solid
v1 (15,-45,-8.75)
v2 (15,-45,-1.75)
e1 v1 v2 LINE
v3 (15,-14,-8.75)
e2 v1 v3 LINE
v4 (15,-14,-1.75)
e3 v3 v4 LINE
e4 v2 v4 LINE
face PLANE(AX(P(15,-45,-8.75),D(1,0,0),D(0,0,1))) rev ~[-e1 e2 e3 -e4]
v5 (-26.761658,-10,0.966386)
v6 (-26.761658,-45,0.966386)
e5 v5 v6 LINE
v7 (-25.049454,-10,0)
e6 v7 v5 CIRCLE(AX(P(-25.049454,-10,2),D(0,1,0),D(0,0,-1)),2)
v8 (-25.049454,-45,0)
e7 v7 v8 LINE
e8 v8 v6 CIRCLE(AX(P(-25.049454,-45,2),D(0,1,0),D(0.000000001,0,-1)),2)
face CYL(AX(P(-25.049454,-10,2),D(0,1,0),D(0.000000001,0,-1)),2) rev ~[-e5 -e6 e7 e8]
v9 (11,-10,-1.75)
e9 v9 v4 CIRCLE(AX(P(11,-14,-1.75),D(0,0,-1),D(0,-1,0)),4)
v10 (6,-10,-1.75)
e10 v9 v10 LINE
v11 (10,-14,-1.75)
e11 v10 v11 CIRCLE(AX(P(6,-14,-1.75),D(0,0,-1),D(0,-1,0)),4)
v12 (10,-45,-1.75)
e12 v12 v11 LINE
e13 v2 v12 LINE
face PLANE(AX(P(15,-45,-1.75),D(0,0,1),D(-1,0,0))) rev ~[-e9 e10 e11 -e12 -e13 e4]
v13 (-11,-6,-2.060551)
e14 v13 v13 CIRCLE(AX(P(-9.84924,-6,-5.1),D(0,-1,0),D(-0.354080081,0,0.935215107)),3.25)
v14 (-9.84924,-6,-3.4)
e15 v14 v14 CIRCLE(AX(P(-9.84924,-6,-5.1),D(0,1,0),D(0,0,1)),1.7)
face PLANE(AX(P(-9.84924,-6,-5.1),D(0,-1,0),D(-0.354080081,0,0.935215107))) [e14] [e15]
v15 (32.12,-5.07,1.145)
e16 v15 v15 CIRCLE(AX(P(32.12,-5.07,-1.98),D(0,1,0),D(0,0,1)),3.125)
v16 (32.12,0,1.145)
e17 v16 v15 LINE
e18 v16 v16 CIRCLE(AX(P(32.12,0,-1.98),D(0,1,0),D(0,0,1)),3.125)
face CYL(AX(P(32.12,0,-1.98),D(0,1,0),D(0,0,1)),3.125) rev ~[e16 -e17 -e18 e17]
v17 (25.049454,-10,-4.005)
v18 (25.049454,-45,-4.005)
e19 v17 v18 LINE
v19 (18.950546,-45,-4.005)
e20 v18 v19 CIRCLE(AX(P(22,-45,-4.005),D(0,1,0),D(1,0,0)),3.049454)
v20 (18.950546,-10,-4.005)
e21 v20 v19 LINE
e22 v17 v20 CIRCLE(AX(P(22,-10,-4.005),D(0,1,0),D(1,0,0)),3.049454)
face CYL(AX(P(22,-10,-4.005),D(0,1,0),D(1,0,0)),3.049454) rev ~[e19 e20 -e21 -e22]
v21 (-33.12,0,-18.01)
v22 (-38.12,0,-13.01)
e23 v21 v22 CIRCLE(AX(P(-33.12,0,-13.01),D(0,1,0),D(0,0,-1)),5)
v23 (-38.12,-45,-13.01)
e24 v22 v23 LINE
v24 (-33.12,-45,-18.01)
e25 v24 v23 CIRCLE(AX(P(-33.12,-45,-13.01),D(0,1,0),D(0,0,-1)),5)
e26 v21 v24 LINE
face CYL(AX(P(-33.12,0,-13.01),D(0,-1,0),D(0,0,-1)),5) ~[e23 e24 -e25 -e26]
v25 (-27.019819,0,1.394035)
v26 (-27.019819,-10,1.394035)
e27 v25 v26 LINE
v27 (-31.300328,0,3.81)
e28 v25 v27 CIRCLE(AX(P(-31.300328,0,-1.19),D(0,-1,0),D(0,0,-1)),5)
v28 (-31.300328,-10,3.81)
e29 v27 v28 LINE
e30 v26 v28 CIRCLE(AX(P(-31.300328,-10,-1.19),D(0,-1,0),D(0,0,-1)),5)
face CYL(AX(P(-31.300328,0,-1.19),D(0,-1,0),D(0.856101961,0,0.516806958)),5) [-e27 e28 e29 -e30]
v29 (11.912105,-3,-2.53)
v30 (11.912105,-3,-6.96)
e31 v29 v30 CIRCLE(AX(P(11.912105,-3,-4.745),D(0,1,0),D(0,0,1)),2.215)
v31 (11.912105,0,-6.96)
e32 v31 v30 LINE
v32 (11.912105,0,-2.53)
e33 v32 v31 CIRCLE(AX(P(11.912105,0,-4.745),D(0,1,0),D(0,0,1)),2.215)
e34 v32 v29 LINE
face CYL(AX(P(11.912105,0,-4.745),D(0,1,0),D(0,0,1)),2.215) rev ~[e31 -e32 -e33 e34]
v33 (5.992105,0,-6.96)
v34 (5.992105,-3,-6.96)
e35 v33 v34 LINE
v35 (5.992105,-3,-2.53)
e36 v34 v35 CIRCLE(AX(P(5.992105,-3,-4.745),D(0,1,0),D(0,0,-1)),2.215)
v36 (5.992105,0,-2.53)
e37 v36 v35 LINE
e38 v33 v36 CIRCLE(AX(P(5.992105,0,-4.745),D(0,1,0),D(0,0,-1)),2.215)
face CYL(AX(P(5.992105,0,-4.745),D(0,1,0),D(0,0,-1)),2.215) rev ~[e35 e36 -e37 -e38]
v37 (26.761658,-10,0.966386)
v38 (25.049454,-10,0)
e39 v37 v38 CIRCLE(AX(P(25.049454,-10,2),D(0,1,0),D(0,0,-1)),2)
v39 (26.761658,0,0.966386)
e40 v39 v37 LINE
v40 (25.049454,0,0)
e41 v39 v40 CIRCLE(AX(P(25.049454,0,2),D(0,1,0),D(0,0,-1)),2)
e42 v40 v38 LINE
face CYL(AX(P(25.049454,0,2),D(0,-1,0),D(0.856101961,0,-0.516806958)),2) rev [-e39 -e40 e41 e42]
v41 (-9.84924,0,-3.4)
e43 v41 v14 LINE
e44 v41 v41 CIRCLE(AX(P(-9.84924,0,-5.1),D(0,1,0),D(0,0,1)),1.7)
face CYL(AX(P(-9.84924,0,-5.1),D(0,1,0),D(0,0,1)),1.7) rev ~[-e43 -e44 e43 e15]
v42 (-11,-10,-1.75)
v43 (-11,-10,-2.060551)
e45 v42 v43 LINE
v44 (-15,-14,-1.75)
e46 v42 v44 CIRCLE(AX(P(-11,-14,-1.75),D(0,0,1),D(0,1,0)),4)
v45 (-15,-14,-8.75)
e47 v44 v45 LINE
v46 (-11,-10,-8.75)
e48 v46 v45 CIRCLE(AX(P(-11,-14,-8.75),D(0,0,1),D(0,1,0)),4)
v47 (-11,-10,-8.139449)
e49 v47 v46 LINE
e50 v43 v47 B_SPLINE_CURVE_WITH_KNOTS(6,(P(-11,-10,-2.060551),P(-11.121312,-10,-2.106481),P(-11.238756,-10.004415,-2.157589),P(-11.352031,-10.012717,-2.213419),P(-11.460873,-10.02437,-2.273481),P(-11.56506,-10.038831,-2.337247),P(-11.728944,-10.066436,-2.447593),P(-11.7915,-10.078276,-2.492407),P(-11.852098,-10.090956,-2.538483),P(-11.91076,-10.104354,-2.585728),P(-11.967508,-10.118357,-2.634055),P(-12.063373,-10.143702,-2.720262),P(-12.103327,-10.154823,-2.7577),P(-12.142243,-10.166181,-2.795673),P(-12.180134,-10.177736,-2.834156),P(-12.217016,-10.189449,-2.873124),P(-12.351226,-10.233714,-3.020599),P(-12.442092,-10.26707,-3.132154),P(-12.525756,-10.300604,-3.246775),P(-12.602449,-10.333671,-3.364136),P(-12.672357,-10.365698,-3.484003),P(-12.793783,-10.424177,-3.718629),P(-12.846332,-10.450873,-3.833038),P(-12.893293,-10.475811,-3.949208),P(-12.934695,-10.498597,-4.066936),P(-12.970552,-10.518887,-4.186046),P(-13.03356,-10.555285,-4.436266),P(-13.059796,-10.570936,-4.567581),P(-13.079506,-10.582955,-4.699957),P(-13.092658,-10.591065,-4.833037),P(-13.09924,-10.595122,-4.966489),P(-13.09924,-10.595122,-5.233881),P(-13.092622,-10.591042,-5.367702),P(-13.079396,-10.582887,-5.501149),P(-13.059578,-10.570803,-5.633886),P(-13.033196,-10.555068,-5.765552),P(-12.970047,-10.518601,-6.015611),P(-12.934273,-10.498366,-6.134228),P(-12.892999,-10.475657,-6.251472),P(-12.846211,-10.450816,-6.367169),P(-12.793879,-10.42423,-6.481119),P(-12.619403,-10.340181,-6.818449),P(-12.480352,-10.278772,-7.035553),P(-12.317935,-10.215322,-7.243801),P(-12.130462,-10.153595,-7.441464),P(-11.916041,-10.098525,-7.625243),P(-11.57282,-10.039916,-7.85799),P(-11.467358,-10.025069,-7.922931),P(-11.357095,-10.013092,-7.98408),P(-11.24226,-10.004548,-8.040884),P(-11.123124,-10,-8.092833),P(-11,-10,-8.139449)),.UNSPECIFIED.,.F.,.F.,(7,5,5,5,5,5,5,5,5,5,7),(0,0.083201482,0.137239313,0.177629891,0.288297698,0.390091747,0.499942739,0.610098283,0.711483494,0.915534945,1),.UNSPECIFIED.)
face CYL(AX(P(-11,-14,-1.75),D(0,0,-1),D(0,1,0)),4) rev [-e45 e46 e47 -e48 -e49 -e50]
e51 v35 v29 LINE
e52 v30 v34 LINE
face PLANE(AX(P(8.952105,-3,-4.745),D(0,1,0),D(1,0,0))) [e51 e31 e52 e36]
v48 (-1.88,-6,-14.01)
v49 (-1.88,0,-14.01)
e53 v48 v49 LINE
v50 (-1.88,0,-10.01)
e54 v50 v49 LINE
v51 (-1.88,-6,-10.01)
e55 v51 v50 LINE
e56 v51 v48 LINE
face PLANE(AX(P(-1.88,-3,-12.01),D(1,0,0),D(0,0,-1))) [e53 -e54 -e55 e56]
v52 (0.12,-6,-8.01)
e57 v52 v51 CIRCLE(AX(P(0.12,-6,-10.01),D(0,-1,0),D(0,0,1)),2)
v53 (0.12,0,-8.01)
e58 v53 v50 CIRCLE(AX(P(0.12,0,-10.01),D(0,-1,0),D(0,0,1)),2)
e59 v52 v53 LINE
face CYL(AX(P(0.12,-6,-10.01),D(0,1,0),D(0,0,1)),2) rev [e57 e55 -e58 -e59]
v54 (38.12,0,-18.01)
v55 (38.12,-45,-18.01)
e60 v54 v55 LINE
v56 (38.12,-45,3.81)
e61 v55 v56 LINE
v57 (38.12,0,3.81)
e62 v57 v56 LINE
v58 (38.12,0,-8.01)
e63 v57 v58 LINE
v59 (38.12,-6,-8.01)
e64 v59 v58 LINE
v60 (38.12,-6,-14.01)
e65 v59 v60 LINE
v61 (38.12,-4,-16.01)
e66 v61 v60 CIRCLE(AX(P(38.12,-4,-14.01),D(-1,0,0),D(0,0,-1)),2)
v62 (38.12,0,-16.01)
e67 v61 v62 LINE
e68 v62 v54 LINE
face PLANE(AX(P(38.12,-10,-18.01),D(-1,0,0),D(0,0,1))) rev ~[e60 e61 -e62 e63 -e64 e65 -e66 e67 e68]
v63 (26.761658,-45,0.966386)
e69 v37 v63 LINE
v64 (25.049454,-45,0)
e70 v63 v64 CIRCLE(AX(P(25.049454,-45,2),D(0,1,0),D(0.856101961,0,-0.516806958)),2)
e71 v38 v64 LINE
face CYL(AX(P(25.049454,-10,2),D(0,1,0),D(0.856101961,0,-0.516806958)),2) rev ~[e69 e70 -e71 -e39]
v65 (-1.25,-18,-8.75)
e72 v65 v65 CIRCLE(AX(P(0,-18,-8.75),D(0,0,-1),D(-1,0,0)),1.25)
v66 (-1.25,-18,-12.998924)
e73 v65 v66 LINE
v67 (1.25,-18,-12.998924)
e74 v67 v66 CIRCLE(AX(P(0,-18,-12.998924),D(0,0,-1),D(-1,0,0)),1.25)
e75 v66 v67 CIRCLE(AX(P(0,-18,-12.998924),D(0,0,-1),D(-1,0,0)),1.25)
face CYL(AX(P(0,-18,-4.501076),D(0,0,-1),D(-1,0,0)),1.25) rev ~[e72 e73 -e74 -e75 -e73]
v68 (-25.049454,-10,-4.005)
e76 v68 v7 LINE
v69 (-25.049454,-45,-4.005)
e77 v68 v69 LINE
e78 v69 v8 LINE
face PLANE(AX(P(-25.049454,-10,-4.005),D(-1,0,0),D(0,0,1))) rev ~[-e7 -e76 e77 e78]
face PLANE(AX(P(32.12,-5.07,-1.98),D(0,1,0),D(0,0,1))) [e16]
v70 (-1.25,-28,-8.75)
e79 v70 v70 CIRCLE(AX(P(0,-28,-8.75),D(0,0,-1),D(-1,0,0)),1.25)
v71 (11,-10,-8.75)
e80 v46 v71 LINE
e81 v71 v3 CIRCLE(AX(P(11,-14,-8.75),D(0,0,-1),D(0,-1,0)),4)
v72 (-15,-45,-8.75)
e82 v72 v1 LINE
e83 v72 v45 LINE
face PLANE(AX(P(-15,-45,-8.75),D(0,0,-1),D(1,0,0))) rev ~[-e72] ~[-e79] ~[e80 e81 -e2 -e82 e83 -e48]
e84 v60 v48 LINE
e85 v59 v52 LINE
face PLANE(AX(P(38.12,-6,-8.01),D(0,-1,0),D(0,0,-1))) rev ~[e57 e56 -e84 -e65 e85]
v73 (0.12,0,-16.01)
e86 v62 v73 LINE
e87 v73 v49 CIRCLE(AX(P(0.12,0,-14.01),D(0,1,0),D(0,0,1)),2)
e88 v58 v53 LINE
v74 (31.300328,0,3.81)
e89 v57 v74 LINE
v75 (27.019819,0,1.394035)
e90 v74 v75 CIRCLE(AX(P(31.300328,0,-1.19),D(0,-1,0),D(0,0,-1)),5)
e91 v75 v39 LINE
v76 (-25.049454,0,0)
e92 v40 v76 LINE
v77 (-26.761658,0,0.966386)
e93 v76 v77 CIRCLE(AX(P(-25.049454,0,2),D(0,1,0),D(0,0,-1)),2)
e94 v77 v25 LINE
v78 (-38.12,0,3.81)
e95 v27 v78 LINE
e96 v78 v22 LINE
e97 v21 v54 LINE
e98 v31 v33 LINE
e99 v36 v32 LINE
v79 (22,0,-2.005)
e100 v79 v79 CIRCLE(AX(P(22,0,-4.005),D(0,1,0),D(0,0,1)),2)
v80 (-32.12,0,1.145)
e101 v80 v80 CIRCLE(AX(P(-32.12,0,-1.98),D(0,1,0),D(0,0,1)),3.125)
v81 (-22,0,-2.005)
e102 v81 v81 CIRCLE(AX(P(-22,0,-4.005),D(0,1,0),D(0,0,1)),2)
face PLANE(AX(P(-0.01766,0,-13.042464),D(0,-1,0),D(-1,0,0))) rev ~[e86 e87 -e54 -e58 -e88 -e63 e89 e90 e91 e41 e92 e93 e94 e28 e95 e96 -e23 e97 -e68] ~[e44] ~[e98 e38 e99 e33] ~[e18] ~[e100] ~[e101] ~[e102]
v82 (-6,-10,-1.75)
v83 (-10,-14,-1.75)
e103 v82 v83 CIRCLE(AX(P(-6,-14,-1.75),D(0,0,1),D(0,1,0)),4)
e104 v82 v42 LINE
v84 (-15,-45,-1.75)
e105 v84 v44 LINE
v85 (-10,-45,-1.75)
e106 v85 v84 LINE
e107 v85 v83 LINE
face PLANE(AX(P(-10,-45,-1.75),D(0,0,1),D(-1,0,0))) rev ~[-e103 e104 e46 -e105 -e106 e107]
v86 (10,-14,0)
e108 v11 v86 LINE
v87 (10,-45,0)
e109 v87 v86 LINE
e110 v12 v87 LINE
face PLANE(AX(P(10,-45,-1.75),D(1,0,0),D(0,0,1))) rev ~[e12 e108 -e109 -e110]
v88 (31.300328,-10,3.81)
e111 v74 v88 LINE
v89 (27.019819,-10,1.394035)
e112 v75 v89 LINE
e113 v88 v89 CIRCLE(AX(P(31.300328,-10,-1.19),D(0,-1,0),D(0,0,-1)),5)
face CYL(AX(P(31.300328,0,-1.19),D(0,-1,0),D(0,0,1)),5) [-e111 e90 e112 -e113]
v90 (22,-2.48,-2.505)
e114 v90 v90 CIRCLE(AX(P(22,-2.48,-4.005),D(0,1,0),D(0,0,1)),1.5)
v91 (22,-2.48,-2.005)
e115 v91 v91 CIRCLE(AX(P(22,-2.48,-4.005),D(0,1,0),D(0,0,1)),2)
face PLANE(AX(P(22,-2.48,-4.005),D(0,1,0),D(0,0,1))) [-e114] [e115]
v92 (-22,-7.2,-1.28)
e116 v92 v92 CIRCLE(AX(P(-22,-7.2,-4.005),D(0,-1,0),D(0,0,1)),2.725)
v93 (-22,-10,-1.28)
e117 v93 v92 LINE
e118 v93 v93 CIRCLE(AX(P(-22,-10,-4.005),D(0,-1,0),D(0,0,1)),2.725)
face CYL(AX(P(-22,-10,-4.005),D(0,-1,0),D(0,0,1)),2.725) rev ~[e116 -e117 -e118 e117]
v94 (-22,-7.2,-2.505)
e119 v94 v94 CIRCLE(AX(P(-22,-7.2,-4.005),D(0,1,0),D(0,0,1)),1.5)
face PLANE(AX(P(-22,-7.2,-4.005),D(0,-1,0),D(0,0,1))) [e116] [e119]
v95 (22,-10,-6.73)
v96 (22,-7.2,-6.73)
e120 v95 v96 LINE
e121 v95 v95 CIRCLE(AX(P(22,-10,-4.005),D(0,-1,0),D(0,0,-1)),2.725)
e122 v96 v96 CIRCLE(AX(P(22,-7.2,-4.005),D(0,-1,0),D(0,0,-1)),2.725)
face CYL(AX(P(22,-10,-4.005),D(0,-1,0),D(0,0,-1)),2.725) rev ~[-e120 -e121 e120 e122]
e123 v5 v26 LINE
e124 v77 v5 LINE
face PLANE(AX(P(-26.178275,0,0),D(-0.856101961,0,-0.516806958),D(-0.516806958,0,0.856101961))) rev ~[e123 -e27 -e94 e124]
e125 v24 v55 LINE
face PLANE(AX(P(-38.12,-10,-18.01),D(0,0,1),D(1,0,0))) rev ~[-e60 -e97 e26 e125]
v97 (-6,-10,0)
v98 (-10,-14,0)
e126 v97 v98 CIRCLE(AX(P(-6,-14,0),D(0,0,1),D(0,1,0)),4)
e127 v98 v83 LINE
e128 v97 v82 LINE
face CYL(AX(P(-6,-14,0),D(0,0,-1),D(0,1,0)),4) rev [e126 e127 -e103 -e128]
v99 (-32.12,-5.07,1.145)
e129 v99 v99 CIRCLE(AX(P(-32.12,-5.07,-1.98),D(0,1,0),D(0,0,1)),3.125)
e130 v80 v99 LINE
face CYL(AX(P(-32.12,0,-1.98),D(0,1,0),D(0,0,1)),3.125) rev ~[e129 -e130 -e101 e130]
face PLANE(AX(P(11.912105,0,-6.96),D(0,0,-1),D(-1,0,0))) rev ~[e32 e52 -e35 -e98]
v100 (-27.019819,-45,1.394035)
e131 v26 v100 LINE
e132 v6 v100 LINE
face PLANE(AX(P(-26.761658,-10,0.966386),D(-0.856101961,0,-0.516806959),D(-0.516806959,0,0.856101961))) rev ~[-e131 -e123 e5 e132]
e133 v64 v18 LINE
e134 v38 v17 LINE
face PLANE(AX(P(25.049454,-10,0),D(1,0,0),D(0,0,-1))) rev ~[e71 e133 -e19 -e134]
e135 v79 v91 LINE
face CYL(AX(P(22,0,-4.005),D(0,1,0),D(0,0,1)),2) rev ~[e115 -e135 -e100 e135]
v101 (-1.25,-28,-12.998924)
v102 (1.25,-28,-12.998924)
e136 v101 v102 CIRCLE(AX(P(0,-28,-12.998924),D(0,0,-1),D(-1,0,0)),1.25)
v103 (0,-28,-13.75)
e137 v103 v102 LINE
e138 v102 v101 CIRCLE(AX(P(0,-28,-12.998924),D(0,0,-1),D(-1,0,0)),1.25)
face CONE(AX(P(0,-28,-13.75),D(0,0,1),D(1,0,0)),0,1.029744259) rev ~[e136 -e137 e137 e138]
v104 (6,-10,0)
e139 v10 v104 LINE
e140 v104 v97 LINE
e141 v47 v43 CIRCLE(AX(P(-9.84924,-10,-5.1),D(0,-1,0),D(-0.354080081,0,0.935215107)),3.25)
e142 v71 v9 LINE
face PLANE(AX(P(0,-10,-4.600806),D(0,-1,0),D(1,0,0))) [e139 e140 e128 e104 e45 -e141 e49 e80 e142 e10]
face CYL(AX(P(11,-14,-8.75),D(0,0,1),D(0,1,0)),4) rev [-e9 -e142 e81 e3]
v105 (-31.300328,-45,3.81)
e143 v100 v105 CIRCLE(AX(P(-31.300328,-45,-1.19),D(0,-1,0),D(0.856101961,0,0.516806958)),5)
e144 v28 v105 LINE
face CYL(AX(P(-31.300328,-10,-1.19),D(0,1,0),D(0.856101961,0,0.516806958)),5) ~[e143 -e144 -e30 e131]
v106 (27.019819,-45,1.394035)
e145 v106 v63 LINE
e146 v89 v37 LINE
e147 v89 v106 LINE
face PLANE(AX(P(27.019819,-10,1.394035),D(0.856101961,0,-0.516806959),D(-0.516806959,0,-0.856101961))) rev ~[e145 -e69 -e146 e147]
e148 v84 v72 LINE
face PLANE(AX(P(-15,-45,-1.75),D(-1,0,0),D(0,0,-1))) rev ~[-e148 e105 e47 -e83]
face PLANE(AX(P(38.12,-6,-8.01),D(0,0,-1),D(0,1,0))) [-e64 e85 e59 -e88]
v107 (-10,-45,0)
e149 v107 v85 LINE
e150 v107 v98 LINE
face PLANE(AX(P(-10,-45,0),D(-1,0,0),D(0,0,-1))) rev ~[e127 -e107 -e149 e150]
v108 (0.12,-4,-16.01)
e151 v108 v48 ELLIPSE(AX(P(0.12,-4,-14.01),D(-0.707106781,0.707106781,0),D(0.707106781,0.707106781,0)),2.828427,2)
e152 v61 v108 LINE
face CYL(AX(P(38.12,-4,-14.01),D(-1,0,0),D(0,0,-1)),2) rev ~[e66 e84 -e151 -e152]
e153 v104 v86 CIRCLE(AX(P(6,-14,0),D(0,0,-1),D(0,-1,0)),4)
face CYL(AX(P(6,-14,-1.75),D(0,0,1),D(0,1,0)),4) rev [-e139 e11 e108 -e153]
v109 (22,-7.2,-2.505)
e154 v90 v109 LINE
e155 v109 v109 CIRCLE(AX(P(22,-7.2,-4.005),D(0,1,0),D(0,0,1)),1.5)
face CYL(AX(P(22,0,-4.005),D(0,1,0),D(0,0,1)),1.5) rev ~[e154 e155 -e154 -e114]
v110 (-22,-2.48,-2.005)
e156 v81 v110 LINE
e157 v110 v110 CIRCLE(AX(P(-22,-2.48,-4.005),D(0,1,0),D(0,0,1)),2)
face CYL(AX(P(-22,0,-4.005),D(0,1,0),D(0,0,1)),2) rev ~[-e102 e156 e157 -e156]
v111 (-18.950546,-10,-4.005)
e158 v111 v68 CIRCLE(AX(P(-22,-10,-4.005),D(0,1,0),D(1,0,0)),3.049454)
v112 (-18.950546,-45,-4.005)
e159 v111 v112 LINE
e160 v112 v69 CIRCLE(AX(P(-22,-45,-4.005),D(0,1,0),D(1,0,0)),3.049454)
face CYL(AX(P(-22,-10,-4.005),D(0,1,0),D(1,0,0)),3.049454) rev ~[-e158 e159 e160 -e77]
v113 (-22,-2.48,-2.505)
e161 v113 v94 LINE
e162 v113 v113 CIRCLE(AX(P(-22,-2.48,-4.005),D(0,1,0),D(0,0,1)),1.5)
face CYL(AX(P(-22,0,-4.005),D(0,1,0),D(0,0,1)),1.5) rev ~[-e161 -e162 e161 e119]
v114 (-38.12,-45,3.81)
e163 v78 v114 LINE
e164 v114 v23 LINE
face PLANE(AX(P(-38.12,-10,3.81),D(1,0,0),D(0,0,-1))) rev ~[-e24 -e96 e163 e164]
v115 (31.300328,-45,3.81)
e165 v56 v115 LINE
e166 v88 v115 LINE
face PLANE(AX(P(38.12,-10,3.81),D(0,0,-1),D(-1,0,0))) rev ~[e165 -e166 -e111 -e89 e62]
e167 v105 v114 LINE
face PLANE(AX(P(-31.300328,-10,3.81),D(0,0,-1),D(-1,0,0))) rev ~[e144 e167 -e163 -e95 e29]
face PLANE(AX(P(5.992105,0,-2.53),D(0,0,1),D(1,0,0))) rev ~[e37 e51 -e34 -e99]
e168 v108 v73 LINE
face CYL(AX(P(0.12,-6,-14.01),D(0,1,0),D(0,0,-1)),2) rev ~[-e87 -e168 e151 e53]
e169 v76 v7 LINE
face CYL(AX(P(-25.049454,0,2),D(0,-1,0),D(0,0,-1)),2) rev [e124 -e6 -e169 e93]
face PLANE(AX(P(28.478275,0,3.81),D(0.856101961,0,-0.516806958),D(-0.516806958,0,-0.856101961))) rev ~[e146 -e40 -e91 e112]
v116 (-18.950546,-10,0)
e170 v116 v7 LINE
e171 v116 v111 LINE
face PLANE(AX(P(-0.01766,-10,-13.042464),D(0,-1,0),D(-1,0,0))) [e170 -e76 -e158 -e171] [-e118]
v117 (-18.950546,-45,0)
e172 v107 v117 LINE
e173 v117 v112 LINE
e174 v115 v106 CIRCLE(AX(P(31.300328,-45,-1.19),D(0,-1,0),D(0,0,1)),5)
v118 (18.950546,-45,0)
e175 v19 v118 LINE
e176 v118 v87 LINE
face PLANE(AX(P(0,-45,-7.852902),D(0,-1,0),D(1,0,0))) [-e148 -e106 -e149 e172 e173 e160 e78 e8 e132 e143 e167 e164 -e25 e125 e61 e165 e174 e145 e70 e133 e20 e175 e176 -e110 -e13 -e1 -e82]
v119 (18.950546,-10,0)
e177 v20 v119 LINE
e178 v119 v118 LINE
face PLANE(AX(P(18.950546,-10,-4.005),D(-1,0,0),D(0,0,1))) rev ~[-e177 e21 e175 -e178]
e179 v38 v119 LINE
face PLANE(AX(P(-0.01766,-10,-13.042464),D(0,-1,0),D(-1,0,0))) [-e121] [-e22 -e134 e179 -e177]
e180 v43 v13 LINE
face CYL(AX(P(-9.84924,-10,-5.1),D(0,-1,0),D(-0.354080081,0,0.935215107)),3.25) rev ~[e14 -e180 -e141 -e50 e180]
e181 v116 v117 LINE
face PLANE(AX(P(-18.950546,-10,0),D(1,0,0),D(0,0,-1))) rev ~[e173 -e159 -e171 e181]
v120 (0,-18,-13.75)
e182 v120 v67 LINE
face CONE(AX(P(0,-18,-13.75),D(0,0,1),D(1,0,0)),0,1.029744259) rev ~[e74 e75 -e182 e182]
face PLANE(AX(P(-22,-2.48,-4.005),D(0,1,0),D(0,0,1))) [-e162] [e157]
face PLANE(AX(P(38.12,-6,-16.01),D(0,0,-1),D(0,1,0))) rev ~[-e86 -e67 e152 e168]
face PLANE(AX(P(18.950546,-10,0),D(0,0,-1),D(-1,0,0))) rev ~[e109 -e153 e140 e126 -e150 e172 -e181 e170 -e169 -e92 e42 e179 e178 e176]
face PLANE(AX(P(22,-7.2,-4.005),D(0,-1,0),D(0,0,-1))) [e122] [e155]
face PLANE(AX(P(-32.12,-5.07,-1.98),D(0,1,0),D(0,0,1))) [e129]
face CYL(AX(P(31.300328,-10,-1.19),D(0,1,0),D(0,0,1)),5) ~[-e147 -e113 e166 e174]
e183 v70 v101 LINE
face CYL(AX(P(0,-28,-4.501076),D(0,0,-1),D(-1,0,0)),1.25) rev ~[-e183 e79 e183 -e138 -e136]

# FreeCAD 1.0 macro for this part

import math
import FreeCAD as App
import Part
import Sketcher
from FreeCAD import Vector


def edges_at(feature, points):
    """Names of the edges that pass closest to the given points."""
    edges = feature.Shape.Edges
    near = lambda p: min(range(len(edges)), key=lambda i: edges[i].distToShape(Part.Vertex(*p))[0])
    return sorted({f"Edge{near(p) + 1}" for p in points})

doc = App.newDocument("Part")
params = doc.addObject("Spreadsheet::Sheet", "Params")
for row, (alias, value) in enumerate([
    ("sketch1_radius", "4.18 mm"),
    ("sketch1_height", "11.82 mm"),
    ("pad1_length", "10 mm"),
    ("fillet_radius", "5 mm"),
    ("fillet2_radius", "2 mm"),
    ("sketch2_diameter", "6.25 mm"),
    ("pocket1_length", "5.07 mm"),
    ("sketch3_diameter", "3.4 mm"),
    ("pocket2_length", "10 mm"),
    ("sketch4_width", "5.92 mm"),
    ("pocket3_length", "3 mm"),
    ("sketch5_diameter", "4 mm"),
    ("pocket4_length", "2.48 mm"),
    ("sketch6_diameter", "3 mm"),
    ("pocket5_length", "10 mm"),
    ("sketch7_diameter", "5.45 mm"),
    ("pocket6_length", "2.8 mm"),
    ("sketch8_height", "10 mm"),
    ("sketch8_radius", "4.18 mm"),
    ("sketch8_width", "76.24 mm"),
    ("pad2_length", "10 mm"),
    ("sketch9_radius", "2 mm"),
    ("sketch9_radius2", "5 mm"),
    ("sketch9_width", "76.24 mm"),
    ("sketch9_height", "21.82 mm"),
    ("pad3_length", "35 mm"),
    ("fillet3_radius", "5 mm"),
    ("sketch10_width", "6 mm"),
    ("sketch10_height", "8 mm"),
    ("pocket7_length", "40 mm"),
    ("fillet4_radius", "2 mm"),
    ("sketch11_width", "5 mm"),
    ("sketch11_width2", "30 mm"),
    ("sketch11_height", "7 mm"),
    ("sketch11_height2", "1.75 mm"),
    ("pocket8_length", "35 mm"),
    ("sketch12_diameter", "2.5 mm"),
    ("hole_diameter", "2.5 mm"),
    ("hole_depth", "4.248924 mm"),
    ("sketch13_diameter", "6.5 mm"),
    ("pad4_length", "2 mm"),
    ("fillet5_radius", "4 mm"),
    ("sketch14_diameter", "6.5 mm"),
    ("pocket9_length", "10 mm"),
    ("pocket9_length2", "4 mm"),
], start=1):
    params.set(f"A{row}", alias)
    params.set(f"B{row}", "=" + value)
    params.setAlias(f"B{row}", alias)

body = doc.addObject("PartDesign::Body", "Body")

sketch1 = body.newObject("Sketcher::SketchObject", "Sketch")
sketch1.AttachmentSupport = (doc.getObject("XZ_Plane"), [""])
sketch1.MapMode = "FlatFace"
sketch1.addGeometry([
    Part.ArcOfCircle(Part.Circle(Vector(-9.8, -5.1, 0), Vector(0, 0, 1), 4.2), math.radians(-112), math.radians(-68)),
    Part.ArcOfCircle(Part.Circle(Vector(-16.4, -21.4, 0), Vector(0, 0, 1), 13.4), math.radians(68), math.radians(90)),
    Part.LineSegment(Vector(-16.4, -8, 0), Vector(-38.1, -8, 0)),
    Part.LineSegment(Vector(-38.1, -8, 0), Vector(-38.1, 3.8, 0)),
    Part.LineSegment(Vector(-38.1, 3.8, 0), Vector(-28.5, 3.8, 0)),
    Part.LineSegment(Vector(-28.5, 3.8, 0), Vector(-26.2, 0, 0)),
    Part.LineSegment(Vector(-26.2, 0, 0), Vector(26.2, 0, 0)),
    Part.LineSegment(Vector(26.2, 0, 0), Vector(28.5, 3.8, 0)),
    Part.LineSegment(Vector(28.5, 3.8, 0), Vector(38.1, 3.8, 0)),
    Part.LineSegment(Vector(38.1, 3.8, 0), Vector(38.1, -8, 0)),
    Part.LineSegment(Vector(38.1, -8, 0), Vector(-3.3, -8, 0)),
    Part.ArcOfCircle(Part.Circle(Vector(-3.3, -21.4, 0), Vector(0, 0, 1), 13.4), math.radians(90), math.radians(112)),
], False)
sketch1.addConstraint([
    Sketcher.Constraint("Tangent", 0, 1, 1, 1),
    Sketcher.Constraint("Tangent", 1, 2, 2, 1),
    Sketcher.Constraint("Coincident", 2, 2, 3, 1),
    Sketcher.Constraint("Coincident", 3, 2, 4, 1),
    Sketcher.Constraint("Coincident", 4, 2, 5, 1),
    Sketcher.Constraint("Coincident", 5, 2, 6, 1),
    Sketcher.Constraint("Coincident", 6, 2, 7, 1),
    Sketcher.Constraint("Coincident", 7, 2, 8, 1),
    Sketcher.Constraint("Coincident", 8, 2, 9, 1),
    Sketcher.Constraint("Coincident", 9, 2, 10, 1),
    Sketcher.Constraint("Tangent", 10, 2, 11, 1),
    Sketcher.Constraint("Tangent", 11, 2, 0, 2),
    Sketcher.Constraint("Horizontal", 2),
    Sketcher.Constraint("Vertical", 3),
    Sketcher.Constraint("Horizontal", 4),
    Sketcher.Constraint("Horizontal", 6),
    Sketcher.Constraint("Horizontal", 8),
    Sketcher.Constraint("Vertical", 9),
    Sketcher.Constraint("Horizontal", 10),
    Sketcher.Constraint("Equal", 1, 11),
    Sketcher.Constraint("Symmetric", 5, 2, 6, 2, -1, 1),
    Sketcher.Constraint("Symmetric", 4, 2, 7, 2, -2),
    Sketcher.Constraint("Symmetric", 2, 2, 9, 2, -2),
    Sketcher.Constraint("Radius", 0, 4.18),
    Sketcher.Constraint("DistanceX", 1, 3, 0, 1, 5.0),
    Sketcher.Constraint("DistanceY", 3, 1, 3, 2, 11.82),
    Sketcher.Constraint("DistanceY", 0, 3, -1, 1, 5.1),
    Sketcher.Constraint("DistanceX", 4, 2, 5, 2, 2.3),
    Sketcher.Constraint("DistanceY", 1, 2, -1, 1, 8.01),
    Sketcher.Constraint("DistanceX", 2, 2, -1, 1, 38.12),
    Sketcher.Constraint("DistanceX", 6, 1, 6, 2, 52.35655),
    Sketcher.Constraint("DistanceX", 2, 2, 2, 1, 21.710755),
])
sketch1.setExpression("Constraints[23]", "Params.sketch1_radius")
sketch1.setExpression("Constraints[25]", "Params.sketch1_height")
pad1 = body.newObject("PartDesign::Pad", "Pad")
pad1.Profile = sketch1
pad1.setExpression("Length", "Params.pad1_length")
doc.recompute()

fillet = body.newObject("PartDesign::Fillet", "Fillet")
fillet.Base = (pad1, edges_at(pad1, [(28.478, -5, 3.81), (-28.478, -5, 3.81)]))
fillet.setExpression("Radius", "Params.fillet_radius")
doc.recompute()

fillet2 = body.newObject("PartDesign::Fillet", "Fillet001")
fillet2.Base = (fillet, edges_at(fillet, [(26.178, -5, 0), (-26.178, -5, 0)]))
fillet2.setExpression("Radius", "Params.fillet2_radius")

sketch2 = body.newObject("Sketcher::SketchObject", "Sketch001")
sketch2.AttachmentSupport = (doc.getObject("XZ_Plane"), [""])
sketch2.MapMode = "FlatFace"
sketch2.addGeometry([
    Part.Circle(Vector(32.1, -2, 0), Vector(0, 0, 1), 3.1),
    Part.Circle(Vector(-32.1, -2, 0), Vector(0, 0, 1), 3.1),
], False)
sketch2.addConstraint([
    Sketcher.Constraint("Equal", 0, 1),
    Sketcher.Constraint("Symmetric", 0, 3, 1, 3, -2),
    Sketcher.Constraint("Diameter", 0, 6.25),
    Sketcher.Constraint("DistanceX", -1, 1, 0, 3, 32.12),
    Sketcher.Constraint("DistanceY", 0, 3, -1, 1, 1.98),
])
sketch2.setExpression("Constraints[2]", "Params.sketch2_diameter")
pocket1 = body.newObject("PartDesign::Pocket", "Pocket")
pocket1.Profile = sketch2
pocket1.setExpression("Length", "Params.pocket1_length")
pocket1.Reversed = True

sketch3 = body.newObject("Sketcher::SketchObject", "Sketch002")
sketch3.AttachmentSupport = (doc.getObject("XZ_Plane"), [""])
sketch3.MapMode = "FlatFace"
sketch3.addGeometry(Part.Circle(Vector(-9.8, -5.1, 0), Vector(0, 0, 1), 1.7), False)
sketch3.addConstraint([
    Sketcher.Constraint("Diameter", 0, 3.4),
    Sketcher.Constraint("DistanceY", 0, 3, -1, 1, 5.1),
    Sketcher.Constraint("DistanceX", 0, 3, -1, 1, 9.84924),
])
sketch3.setExpression("Constraints[0]", "Params.sketch3_diameter")
pocket2 = body.newObject("PartDesign::Pocket", "Pocket001")
pocket2.Profile = sketch3
pocket2.setExpression("Length", "Params.pocket2_length")
pocket2.Reversed = True

sketch4 = body.newObject("Sketcher::SketchObject", "Sketch003")
sketch4.AttachmentSupport = (doc.getObject("XZ_Plane"), [""])
sketch4.MapMode = "FlatFace"
sketch4.addGeometry([
    Part.LineSegment(Vector(6, -2.5, 0), Vector(11.9, -2.5, 0)),
    Part.ArcOfCircle(Part.Circle(Vector(11.9, -4.7, 0), Vector(0, 0, 1), 2.2), math.radians(-90), math.radians(90)),
    Part.LineSegment(Vector(11.9, -7, 0), Vector(6, -7, 0)),
    Part.ArcOfCircle(Part.Circle(Vector(6, -4.7, 0), Vector(0, 0, 1), 2.2), math.radians(90), math.radians(270)),
], False)
sketch4.addConstraint([
    Sketcher.Constraint("Tangent", 0, 2, 1, 2),
    Sketcher.Constraint("Tangent", 1, 1, 2, 1),
    Sketcher.Constraint("Tangent", 2, 2, 3, 2),
    Sketcher.Constraint("Tangent", 3, 1, 0, 1),
    Sketcher.Constraint("Horizontal", 0),
    Sketcher.Constraint("Horizontal", 2),
    Sketcher.Constraint("Radius", 1, 2.215),
    Sketcher.Constraint("DistanceX", 0, 1, 0, 2, 5.92),
    Sketcher.Constraint("DistanceY", 0, 2, -1, 1, 2.53),
    Sketcher.Constraint("DistanceX", -1, 1, 1, 3, 11.912105),
])
sketch4.setExpression("Constraints[7]", "Params.sketch4_width")
pocket3 = body.newObject("PartDesign::Pocket", "Pocket002")
pocket3.Profile = sketch4
pocket3.setExpression("Length", "Params.pocket3_length")
pocket3.Reversed = True

sketch5 = body.newObject("Sketcher::SketchObject", "Sketch004")
sketch5.AttachmentSupport = (doc.getObject("XZ_Plane"), [""])
sketch5.MapMode = "FlatFace"
sketch5.addGeometry([
    Part.Circle(Vector(-22, -4, 0), Vector(0, 0, 1), 2),
    Part.Circle(Vector(22, -4, 0), Vector(0, 0, 1), 2),
], False)
sketch5.addConstraint([
    Sketcher.Constraint("Equal", 0, 1),
    Sketcher.Constraint("Symmetric", 0, 3, 1, 3, -2),
    Sketcher.Constraint("Diameter", 0, 4.0),
    Sketcher.Constraint("DistanceX", 0, 3, -1, 1, 22.0),
    Sketcher.Constraint("DistanceY", 0, 3, -1, 1, 4.005),
])
sketch5.setExpression("Constraints[2]", "Params.sketch5_diameter")
pocket4 = body.newObject("PartDesign::Pocket", "Pocket003")
pocket4.Profile = sketch5
pocket4.setExpression("Length", "Params.pocket4_length")
pocket4.Reversed = True

sketch6 = body.newObject("Sketcher::SketchObject", "Sketch005")
sketch6.AttachmentSupport = (doc.getObject("XZ_Plane"), [""])
sketch6.MapMode = "FlatFace"
sketch6.addGeometry([
    Part.Circle(Vector(-22, -4, 0), Vector(0, 0, 1), 1.5),
    Part.Circle(Vector(22, -4, 0), Vector(0, 0, 1), 1.5),
], False)
sketch6.addConstraint([
    Sketcher.Constraint("Equal", 0, 1),
    Sketcher.Constraint("Symmetric", 0, 3, 1, 3, -2),
    Sketcher.Constraint("Diameter", 0, 3.0),
    Sketcher.Constraint("DistanceX", 0, 3, -1, 1, 22.0),
    Sketcher.Constraint("DistanceY", 0, 3, -1, 1, 4.005),
])
sketch6.setExpression("Constraints[2]", "Params.sketch6_diameter")
pocket5 = body.newObject("PartDesign::Pocket", "Pocket004")
pocket5.Profile = sketch6
pocket5.setExpression("Length", "Params.pocket5_length")
pocket5.Reversed = True

sketch7 = body.newObject("Sketcher::SketchObject", "Sketch006")
sketch7.AttachmentSupport = (doc.getObject("XZ_Plane"), [""])
sketch7.MapMode = "FlatFace"
sketch7.AttachmentOffset = App.Placement(Vector(0, 0, 10), App.Rotation())
sketch7.addGeometry([
    Part.Circle(Vector(22, -4, 0), Vector(0, 0, 1), 2.7),
    Part.Circle(Vector(-22, -4, 0), Vector(0, 0, 1), 2.7),
], False)
sketch7.addConstraint([
    Sketcher.Constraint("Equal", 0, 1),
    Sketcher.Constraint("Symmetric", 0, 3, 1, 3, -2),
    Sketcher.Constraint("Diameter", 0, 5.45),
    Sketcher.Constraint("DistanceX", -1, 1, 0, 3, 22.0),
    Sketcher.Constraint("DistanceY", 0, 3, -1, 1, 4.005),
])
sketch7.setExpression("Constraints[2]", "Params.sketch7_diameter")
pocket6 = body.newObject("PartDesign::Pocket", "Pocket005")
pocket6.Profile = sketch7
pocket6.setExpression("Length", "Params.pocket6_length")

sketch8 = body.newObject("Sketcher::SketchObject", "Sketch007")
sketch8.AttachmentSupport = (doc.getObject("XZ_Plane"), [""])
sketch8.MapMode = "FlatFace"
sketch8.addGeometry([
    Part.LineSegment(Vector(-38.1, -18, 0), Vector(-38.1, -8, 0)),
    Part.LineSegment(Vector(-38.1, -8, 0), Vector(-16.4, -8, 0)),
    Part.ArcOfCircle(Part.Circle(Vector(-16.4, -21.4, 0), Vector(0, 0, 1), 13.4), math.radians(68), math.radians(90)),
    Part.ArcOfCircle(Part.Circle(Vector(-9.8, -5.1, 0), Vector(0, 0, 1), 4.2), math.radians(-112), math.radians(-68)),
    Part.ArcOfCircle(Part.Circle(Vector(-3.3, -21.4, 0), Vector(0, 0, 1), 13.4), math.radians(90), math.radians(112)),
    Part.LineSegment(Vector(-3.3, -8, 0), Vector(38.1, -8, 0)),
    Part.LineSegment(Vector(38.1, -8, 0), Vector(38.1, -18, 0)),
    Part.LineSegment(Vector(38.1, -18, 0), Vector(-38.1, -18, 0)),
], False)
sketch8.addConstraint([
    Sketcher.Constraint("Coincident", 0, 2, 1, 1),
    Sketcher.Constraint("Tangent", 1, 2, 2, 2),
    Sketcher.Constraint("Tangent", 2, 1, 3, 1),
    Sketcher.Constraint("Tangent", 3, 2, 4, 2),
    Sketcher.Constraint("Tangent", 4, 1, 5, 1),
    Sketcher.Constraint("Coincident", 5, 2, 6, 1),
    Sketcher.Constraint("Coincident", 6, 2, 7, 1),
    Sketcher.Constraint("Coincident", 7, 2, 0, 1),
    Sketcher.Constraint("Vertical", 0),
    Sketcher.Constraint("Horizontal", 1),
    Sketcher.Constraint("Horizontal", 5),
    Sketcher.Constraint("Vertical", 6),
    Sketcher.Constraint("Horizontal", 7),
    Sketcher.Constraint("Equal", 2, 4),
    Sketcher.Constraint("Symmetric", 0, 2, 5, 2, -2),
    Sketcher.Constraint("DistanceY", 0, 1, 0, 2, 10.0),
    Sketcher.Constraint("Radius", 3, 4.18),
    Sketcher.Constraint("DistanceX", 1, 2, 2, 1, 5.0),
    Sketcher.Constraint("DistanceX", 7, 2, 7, 1, 76.24),
    Sketcher.Constraint("DistanceY", 3, 3, -1, 1, 5.1),
    Sketcher.Constraint("DistanceY", 0, 2, -1, 1, 8.01),
    Sketcher.Constraint("DistanceX", 1, 1, 1, 2, 21.710755),
])
sketch8.setExpression("Constraints[15]", "Params.sketch8_height")
sketch8.setExpression("Constraints[16]", "Params.sketch8_radius")
sketch8.setExpression("Constraints[18]", "Params.sketch8_width")
pad2 = body.newObject("PartDesign::Pad", "Pad001")
pad2.Profile = sketch8
pad2.setExpression("Length", "Params.pad2_length")

sketch9 = body.newObject("Sketcher::SketchObject", "Sketch008")
sketch9.AttachmentSupport = (doc.getObject("XZ_Plane"), [""])
sketch9.MapMode = "FlatFace"
sketch9.AttachmentOffset = App.Placement(Vector(0, 0, 10), App.Rotation())
sketch9.addGeometry([
    Part.LineSegment(Vector(18.95, 0, 0), Vector(-18.95, 0, 0)),
    Part.LineSegment(Vector(-18.95, 0, 0), Vector(-18.95, -4, 0)),
    Part.ArcOfCircle(Part.Circle(Vector(-22, -4, 0), Vector(0, 0, 1), 3.05), math.radians(180), math.radians(360)),
    Part.LineSegment(Vector(-25.05, -4, 0), Vector(-25.05, 0, 0)),
    Part.ArcOfCircle(Part.Circle(Vector(-25.05, 2, 0), Vector(0, 0, 1), 2), math.radians(-149), math.radians(-90)),
    Part.LineSegment(Vector(-26.76, 0.97, 0), Vector(-27.02, 1.39, 0)),
    Part.ArcOfCircle(Part.Circle(Vector(-31.3, -1.19, 0), Vector(0, 0, 1), 5), math.radians(31), math.radians(90)),
    Part.LineSegment(Vector(-31.3, 3.81, 0), Vector(-38.12, 3.81, 0)),
    Part.LineSegment(Vector(-38.12, 3.81, 0), Vector(-38.12, -18.01, 0)),
    Part.LineSegment(Vector(-38.12, -18.01, 0), Vector(38.12, -18.01, 0)),
    Part.LineSegment(Vector(38.12, -18.01, 0), Vector(38.12, 3.81, 0)),
    Part.LineSegment(Vector(38.12, 3.81, 0), Vector(31.3, 3.81, 0)),
    Part.ArcOfCircle(Part.Circle(Vector(31.3, -1.19, 0), Vector(0, 0, 1), 5), math.radians(90), math.radians(149)),
    Part.LineSegment(Vector(27.02, 1.39, 0), Vector(26.76, 0.97, 0)),
    Part.ArcOfCircle(Part.Circle(Vector(25.05, 2, 0), Vector(0, 0, 1), 2), math.radians(-90), math.radians(-31)),
    Part.LineSegment(Vector(25.05, 0, 0), Vector(25.05, -4, 0)),
    Part.ArcOfCircle(Part.Circle(Vector(22, -4, 0), Vector(0, 0, 1), 3.05), math.radians(180), math.radians(360)),
    Part.LineSegment(Vector(18.95, -4, 0), Vector(18.95, 0, 0)),
], False)
sketch9.addConstraint([
    Sketcher.Constraint("Coincident", 0, 2, 1, 1),
    Sketcher.Constraint("Tangent", 1, 2, 2, 2),
    Sketcher.Constraint("Tangent", 2, 1, 3, 1),
    Sketcher.Constraint("Coincident", 3, 2, 4, 2),
    Sketcher.Constraint("Tangent", 4, 1, 5, 1),
    Sketcher.Constraint("Tangent", 5, 2, 6, 1),
    Sketcher.Constraint("Tangent", 6, 2, 7, 1),
    Sketcher.Constraint("Coincident", 7, 2, 8, 1),
    Sketcher.Constraint("Coincident", 8, 2, 9, 1),
    Sketcher.Constraint("Coincident", 9, 2, 10, 1),
    Sketcher.Constraint("Coincident", 10, 2, 11, 1),
    Sketcher.Constraint("Tangent", 11, 2, 12, 1),
    Sketcher.Constraint("Tangent", 12, 2, 13, 1),
    Sketcher.Constraint("Tangent", 13, 2, 14, 2),
    Sketcher.Constraint("Coincident", 14, 1, 15, 1),
    Sketcher.Constraint("Tangent", 15, 2, 16, 2),
    Sketcher.Constraint("Tangent", 16, 1, 17, 1),
    Sketcher.Constraint("Coincident", 17, 2, 0, 1),
    Sketcher.Constraint("Horizontal", 0),
    Sketcher.Constraint("Vertical", 1),
    Sketcher.Constraint("Vertical", 3),
    Sketcher.Constraint("Horizontal", 7),
    Sketcher.Constraint("Vertical", 8),
    Sketcher.Constraint("Horizontal", 9),
    Sketcher.Constraint("Vertical", 10),
    Sketcher.Constraint("Horizontal", 11),
    Sketcher.Constraint("Vertical", 15),
    Sketcher.Constraint("Vertical", 17),
    Sketcher.Constraint("Equal", 6, 12),
    Sketcher.Constraint("Equal", 4, 14),
    Sketcher.Constraint("Equal", 2, 16),
    Sketcher.Constraint("Symmetric", 3, 2, 14, 1, -1, 1),
    Sketcher.Constraint("Symmetric", 6, 3, 12, 3, -2),
    Sketcher.Constraint("Symmetric", 4, 3, 14, 3, -2),
    Sketcher.Constraint("PointOnObject", 0, 2, -1),
    Sketcher.Constraint("Horizontal", 2, 3, 16, 3),
    Sketcher.Constraint("Vertical", 4, 3, 2, 1),
    Sketcher.Constraint("Equal", 7, 11),
    Sketcher.Constraint("Radius", 4, 2.0),
    Sketcher.Constraint("Radius", 6, 5.0),
    Sketcher.Constraint("DistanceX", 2, 3, -1, 1, 22.0),
    Sketcher.Constraint("DistanceX", 9, 1, 9, 2, 76.24),
    Sketcher.Constraint("DistanceY", 8, 2, 8, 1, 21.82),
    Sketcher.Constraint("DistanceY", 1, 2, 1, 1, 4.005),
    Sketcher.Constraint("DistanceY", 6, 3, -1, 1, 1.19),
    Sketcher.Constraint("Radius", 2, 3.049454),
    Sketcher.Constraint("DistanceX", 7, 2, 7, 1, 6.819672),
])
sketch9.setExpression("Constraints[38]", "Params.sketch9_radius")
sketch9.setExpression("Constraints[39]", "Params.sketch9_radius2")
sketch9.setExpression("Constraints[41]", "Params.sketch9_width")
sketch9.setExpression("Constraints[42]", "Params.sketch9_height")
pad3 = body.newObject("PartDesign::Pad", "Pad002")
pad3.Profile = sketch9
pad3.setExpression("Length", "Params.pad3_length")
doc.recompute()

fillet3 = body.newObject("PartDesign::Fillet", "Fillet002")
fillet3.Base = (pad3, edges_at(pad3, [(-38.12, -22.5, -18.01)]))
fillet3.setExpression("Radius", "Params.fillet3_radius")

sketch10 = body.newObject("Sketcher::SketchObject", "Sketch009")
sketch10.AttachmentSupport = (doc.getObject("YZ_Plane"), [""])
sketch10.MapMode = "FlatFace"
sketch10.AttachmentOffset = App.Placement(Vector(0, 0, 38.12), App.Rotation())
sketch10.addGeometry([
    Part.LineSegment(Vector(0, -8, 0), Vector(-6, -8, 0)),
    Part.LineSegment(Vector(-6, -8, 0), Vector(-6, -16, 0)),
    Part.LineSegment(Vector(-6, -16, 0), Vector(0, -16, 0)),
    Part.LineSegment(Vector(0, -16, 0), Vector(0, -8, 0)),
], False)
sketch10.addConstraint([
    Sketcher.Constraint("Coincident", 0, 2, 1, 1),
    Sketcher.Constraint("Coincident", 1, 2, 2, 1),
    Sketcher.Constraint("Coincident", 2, 2, 3, 1),
    Sketcher.Constraint("Coincident", 3, 2, 0, 1),
    Sketcher.Constraint("Horizontal", 0),
    Sketcher.Constraint("Vertical", 1),
    Sketcher.Constraint("Horizontal", 2),
    Sketcher.Constraint("Vertical", 3),
    Sketcher.Constraint("PointOnObject", 2, 2, -2),
    Sketcher.Constraint("DistanceX", 0, 2, 0, 1, 6.0),
    Sketcher.Constraint("DistanceY", 1, 2, 1, 1, 8.0),
    Sketcher.Constraint("DistanceY", 0, 2, -1, 1, 8.01),
])
sketch10.setExpression("Constraints[9]", "Params.sketch10_width")
sketch10.setExpression("Constraints[10]", "Params.sketch10_height")
pocket7 = body.newObject("PartDesign::Pocket", "Pocket006")
pocket7.Profile = sketch10
pocket7.setExpression("Length", "Params.pocket7_length")
doc.recompute()

fillet4 = body.newObject("PartDesign::Fillet", "Fillet003")
fillet4.Base = (pocket7, edges_at(pocket7, [(-1.88, -3, -16.01), (18.12, -6, -16.01), (-1.88, -3, -8.01)]))
fillet4.setExpression("Radius", "Params.fillet4_radius")

sketch11 = body.newObject("Sketcher::SketchObject", "Sketch010")
sketch11.AttachmentSupport = (doc.getObject("XZ_Plane"), [""])
sketch11.MapMode = "FlatFace"
sketch11.AttachmentOffset = App.Placement(Vector(0, 0, 45), App.Rotation())
sketch11.addGeometry([
    Part.LineSegment(Vector(-10, 0, 0), Vector(-10, -1.8, 0)),
    Part.LineSegment(Vector(-10, -1.8, 0), Vector(-15, -1.8, 0)),
    Part.LineSegment(Vector(-15, -1.8, 0), Vector(-15, -8.8, 0)),
    Part.LineSegment(Vector(-15, -8.8, 0), Vector(15, -8.8, 0)),
    Part.LineSegment(Vector(15, -8.8, 0), Vector(15, -1.8, 0)),
    Part.LineSegment(Vector(15, -1.8, 0), Vector(10, -1.8, 0)),
    Part.LineSegment(Vector(10, -1.8, 0), Vector(10, 0, 0)),
    Part.LineSegment(Vector(10, 0, 0), Vector(-10, 0, 0)),
], False)
sketch11.addConstraint([
    Sketcher.Constraint("Coincident", 0, 2, 1, 1),
    Sketcher.Constraint("Coincident", 1, 2, 2, 1),
    Sketcher.Constraint("Coincident", 2, 2, 3, 1),
    Sketcher.Constraint("Coincident", 3, 2, 4, 1),
    Sketcher.Constraint("Coincident", 4, 2, 5, 1),
    Sketcher.Constraint("Coincident", 5, 2, 6, 1),
    Sketcher.Constraint("Coincident", 6, 2, 7, 1),
    Sketcher.Constraint("Coincident", 7, 2, 0, 1),
    Sketcher.Constraint("Vertical", 0),
    Sketcher.Constraint("Horizontal", 1),
    Sketcher.Constraint("Vertical", 2),
    Sketcher.Constraint("Horizontal", 3),
    Sketcher.Constraint("Vertical", 4),
    Sketcher.Constraint("Horizontal", 5),
    Sketcher.Constraint("Vertical", 6),
    Sketcher.Constraint("Horizontal", 7),
    Sketcher.Constraint("Symmetric", 6, 2, 7, 2, -1, 1),
    Sketcher.Constraint("Symmetric", 1, 2, 4, 2, -2),
    Sketcher.Constraint("DistanceX", 1, 2, 1, 1, 5.0),
    Sketcher.Constraint("DistanceX", 3, 1, 3, 2, 30.0),
    Sketcher.Constraint("DistanceY", 2, 2, 2, 1, 7.0),
    Sketcher.Constraint("DistanceY", 0, 2, 0, 1, 1.75),
])
sketch11.setExpression("Constraints[18]", "Params.sketch11_width")
sketch11.setExpression("Constraints[19]", "Params.sketch11_width2")
sketch11.setExpression("Constraints[20]", "Params.sketch11_height")
sketch11.setExpression("Constraints[21]", "Params.sketch11_height2")
pocket8 = body.newObject("PartDesign::Pocket", "Pocket007")
pocket8.Profile = sketch11
pocket8.setExpression("Length", "Params.pocket8_length")

sketch12 = body.newObject("Sketcher::SketchObject", "Sketch011")
sketch12.AttachmentSupport = (doc.getObject("XY_Plane"), [""])
sketch12.MapMode = "FlatFace"
sketch12.AttachmentOffset = App.Placement(Vector(0, 0, -8.75), App.Rotation())
sketch12.addGeometry([
    Part.Circle(Vector(0, -28, 0), Vector(0, 0, 1), 1.2),
    Part.Circle(Vector(0, -18, 0), Vector(0, 0, 1), 1.2),
], False)
sketch12.addConstraint([
    Sketcher.Constraint("Equal", 0, 1),
    Sketcher.Constraint("PointOnObject", 0, 3, -2),
    Sketcher.Constraint("PointOnObject", 1, 3, -2),
    Sketcher.Constraint("Diameter", 0, 2.5),
    Sketcher.Constraint("DistanceY", 0, 3, -1, 1, 28.0),
    Sketcher.Constraint("DistanceY", 1, 3, -1, 1, 18.0),
])
sketch12.setExpression("Constraints[3]", "Params.sketch12_diameter")
doc.recompute()
hole = body.newObject("PartDesign::Hole", "Hole")
hole.Profile = sketch12
hole.ThreadType = "None"
hole.setExpression("Diameter", "Params.hole_diameter")
hole.DepthType = "Dimension"
hole.setExpression("Depth", "Params.hole_depth")
hole.DrillPoint = "Angled"
hole.DrillPointAngle = 118

sketch13 = body.newObject("Sketcher::SketchObject", "Sketch012")
sketch13.AttachmentSupport = (doc.getObject("XZ_Plane"), [""])
sketch13.MapMode = "FlatFace"
sketch13.AttachmentOffset = App.Placement(Vector(0, 0, 10), App.Rotation())
sketch13.addGeometry(Part.Circle(Vector(-9.8, -5.1, 0), Vector(0, 0, 1), 3.2), False)
sketch13.addConstraint([
    Sketcher.Constraint("Diameter", 0, 6.5),
    Sketcher.Constraint("DistanceY", 0, 3, -1, 1, 5.1),
    Sketcher.Constraint("DistanceX", 0, 3, -1, 1, 9.84924),
])
sketch13.setExpression("Constraints[0]", "Params.sketch13_diameter")
pad4 = body.newObject("PartDesign::Pad", "Pad003")
pad4.Profile = sketch13
pad4.setExpression("Length", "Params.pad4_length")
pad4.Reversed = True
doc.recompute()

fillet5 = body.newObject("PartDesign::Fillet", "Fillet004")
fillet5.Base = (pad4, edges_at(pad4, [
    (-10, -10, -0.875),
    (-15, -10, -5.25),
    (15, -10, -5.25),
    (10, -10, -0.875),
]))
fillet5.setExpression("Radius", "Params.fillet5_radius")

sketch14 = body.newObject("Sketcher::SketchObject", "Sketch013")
sketch14.AttachmentSupport = (doc.getObject("XZ_Plane"), [""])
sketch14.MapMode = "FlatFace"
sketch14.AttachmentOffset = App.Placement(Vector(0, 0, 10), App.Rotation())
sketch14.addGeometry(Part.Circle(Vector(-9.8, -5.1, 0), Vector(0, 0, 1), 3.2), False)
sketch14.addConstraint([
    Sketcher.Constraint("Diameter", 0, 6.5),
    Sketcher.Constraint("DistanceY", 0, 3, -1, 1, 5.1),
    Sketcher.Constraint("DistanceX", 0, 3, -1, 1, 9.84924),
])
sketch14.setExpression("Constraints[0]", "Params.sketch14_diameter")
pocket9 = body.newObject("PartDesign::Pocket", "Pocket008")
pocket9.Profile = sketch14
pocket9.Type = "TwoLengths"
pocket9.setExpression("Length", "Params.pocket9_length")
pocket9.setExpression("Length2", "Params.pocket9_length2")
pocket9.Reversed = True

doc.recompute()
